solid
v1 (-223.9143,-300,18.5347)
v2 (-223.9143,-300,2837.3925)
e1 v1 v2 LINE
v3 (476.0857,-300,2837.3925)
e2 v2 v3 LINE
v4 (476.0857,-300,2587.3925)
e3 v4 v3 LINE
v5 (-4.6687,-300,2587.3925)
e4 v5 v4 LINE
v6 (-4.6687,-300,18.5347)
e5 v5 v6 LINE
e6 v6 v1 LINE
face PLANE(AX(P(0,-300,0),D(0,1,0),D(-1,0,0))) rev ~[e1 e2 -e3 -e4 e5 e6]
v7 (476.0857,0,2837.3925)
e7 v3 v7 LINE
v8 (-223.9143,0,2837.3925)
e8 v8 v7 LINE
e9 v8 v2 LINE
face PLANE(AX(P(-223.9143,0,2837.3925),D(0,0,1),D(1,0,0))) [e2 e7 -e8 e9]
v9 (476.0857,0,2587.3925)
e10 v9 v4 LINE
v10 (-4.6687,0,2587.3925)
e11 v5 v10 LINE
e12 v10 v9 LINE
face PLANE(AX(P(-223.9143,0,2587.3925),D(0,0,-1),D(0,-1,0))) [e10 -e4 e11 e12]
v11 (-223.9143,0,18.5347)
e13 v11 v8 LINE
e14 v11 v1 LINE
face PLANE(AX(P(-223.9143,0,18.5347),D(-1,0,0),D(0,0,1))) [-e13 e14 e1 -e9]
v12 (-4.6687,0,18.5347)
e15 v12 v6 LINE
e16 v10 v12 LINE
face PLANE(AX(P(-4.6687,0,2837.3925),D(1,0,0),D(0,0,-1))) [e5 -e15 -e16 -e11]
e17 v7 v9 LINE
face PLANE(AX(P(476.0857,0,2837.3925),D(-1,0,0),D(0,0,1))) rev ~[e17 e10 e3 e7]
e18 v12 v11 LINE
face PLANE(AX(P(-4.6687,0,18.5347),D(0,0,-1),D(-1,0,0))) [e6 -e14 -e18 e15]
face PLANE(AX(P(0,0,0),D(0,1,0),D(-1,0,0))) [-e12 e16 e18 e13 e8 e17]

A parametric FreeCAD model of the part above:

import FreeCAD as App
import Part
import Sketcher
Q = App.Units.Quantity

doc = App.newDocument("Part")
body = doc.addObject("PartDesign::Body", "Body")

# Sketch on XZ plane
sketch1 = doc.addObject("Sketcher::SketchObject", "Sketch")
body.addObject(sketch1)
sketch1.AttachmentSupport = (doc.XZ_Plane, [""])
sketch1.MapMode = "FlatFace"
sketch1.addGeometry(Part.LineSegment(App.Vector(-5, 2837, 0), App.Vector(-5, 19, 0)), False)
sketch1.addGeometry(Part.LineSegment(App.Vector(-5, 19, 0), App.Vector(-224, 19, 0)), False)
sketch1.addGeometry(Part.LineSegment(App.Vector(-224, 19, 0), App.Vector(-224, 2837, 0)), False)
sketch1.addGeometry(Part.LineSegment(App.Vector(-224, 2837, 0), App.Vector(-5, 2837, 0)), False)
sketch1.addConstraint(Sketcher.Constraint("Coincident", 0, 2, 1, 1))
sketch1.addConstraint(Sketcher.Constraint("Coincident", 1, 2, 2, 1))
sketch1.addConstraint(Sketcher.Constraint("Coincident", 2, 2, 3, 1))
sketch1.addConstraint(Sketcher.Constraint("Coincident", 3, 2, 0, 1))
sketch1.addConstraint(Sketcher.Constraint("Vertical", 0))
sketch1.addConstraint(Sketcher.Constraint("Horizontal", 1))
sketch1.addConstraint(Sketcher.Constraint("Vertical", 2))
sketch1.addConstraint(Sketcher.Constraint("Horizontal", 3))
sketch1.addConstraint(Sketcher.Constraint("DistanceX", 1, 2, 1, 1, Q("219.2456 mm")))
sketch1.addConstraint(Sketcher.Constraint("DistanceY", 0, 2, 0, 1, Q("2818.8578 mm")))
sketch1.addConstraint(Sketcher.Constraint("DistanceX", 0, 2, -1, 1, Q("4.6687 mm")))
sketch1.addConstraint(Sketcher.Constraint("DistanceY", -1, 1, 0, 2, Q("18.5347 mm")))
pad1 = doc.addObject("PartDesign::Pad", "Pad")
body.addObject(pad1)
pad1.Profile = sketch1
pad1.Length = 300

# Sketch on YZ plane
sketch2 = doc.addObject("Sketcher::SketchObject", "Sketch001")
body.addObject(sketch2)
sketch2.AttachmentSupport = (doc.YZ_Plane, [""])
sketch2.MapMode = "FlatFace"
sketch2.AttachmentOffset = App.Placement(App.Vector(0, 0, -223.9143), App.Rotation())
sketch2.addGeometry(Part.LineSegment(App.Vector(-300, 2837, 0), App.Vector(0, 2837, 0)), False)
sketch2.addGeometry(Part.LineSegment(App.Vector(0, 2837, 0), App.Vector(0, 2587, 0)), False)
sketch2.addGeometry(Part.LineSegment(App.Vector(0, 2587, 0), App.Vector(-300, 2587, 0)), False)
sketch2.addGeometry(Part.LineSegment(App.Vector(-300, 2587, 0), App.Vector(-300, 2837, 0)), False)
sketch2.addConstraint(Sketcher.Constraint("Coincident", 0, 2, 1, 1))
sketch2.addConstraint(Sketcher.Constraint("Coincident", 1, 2, 2, 1))
sketch2.addConstraint(Sketcher.Constraint("Coincident", 2, 2, 3, 1))
sketch2.addConstraint(Sketcher.Constraint("Coincident", 3, 2, 0, 1))
sketch2.addConstraint(Sketcher.Constraint("Horizontal", 0))
sketch2.addConstraint(Sketcher.Constraint("Vertical", 1))
sketch2.addConstraint(Sketcher.Constraint("Horizontal", 2))
sketch2.addConstraint(Sketcher.Constraint("Vertical", 3))
sketch2.addConstraint(Sketcher.Constraint("PointOnObject", 0, 2, -2))
sketch2.addConstraint(Sketcher.Constraint("DistanceY", 1, 2, 1, 1, Q("250 mm")))
sketch2.addConstraint(Sketcher.Constraint("DistanceX", 0, 1, 0, 2, Q("300 mm")))
sketch2.addConstraint(Sketcher.Constraint("DistanceY", -1, 1, 0, 2, Q("2837.3925 mm")))
pad2 = doc.addObject("PartDesign::Pad", "Pad001")
body.addObject(pad2)
pad2.Profile = sketch2
pad2.Length = 700

doc.recompute()
